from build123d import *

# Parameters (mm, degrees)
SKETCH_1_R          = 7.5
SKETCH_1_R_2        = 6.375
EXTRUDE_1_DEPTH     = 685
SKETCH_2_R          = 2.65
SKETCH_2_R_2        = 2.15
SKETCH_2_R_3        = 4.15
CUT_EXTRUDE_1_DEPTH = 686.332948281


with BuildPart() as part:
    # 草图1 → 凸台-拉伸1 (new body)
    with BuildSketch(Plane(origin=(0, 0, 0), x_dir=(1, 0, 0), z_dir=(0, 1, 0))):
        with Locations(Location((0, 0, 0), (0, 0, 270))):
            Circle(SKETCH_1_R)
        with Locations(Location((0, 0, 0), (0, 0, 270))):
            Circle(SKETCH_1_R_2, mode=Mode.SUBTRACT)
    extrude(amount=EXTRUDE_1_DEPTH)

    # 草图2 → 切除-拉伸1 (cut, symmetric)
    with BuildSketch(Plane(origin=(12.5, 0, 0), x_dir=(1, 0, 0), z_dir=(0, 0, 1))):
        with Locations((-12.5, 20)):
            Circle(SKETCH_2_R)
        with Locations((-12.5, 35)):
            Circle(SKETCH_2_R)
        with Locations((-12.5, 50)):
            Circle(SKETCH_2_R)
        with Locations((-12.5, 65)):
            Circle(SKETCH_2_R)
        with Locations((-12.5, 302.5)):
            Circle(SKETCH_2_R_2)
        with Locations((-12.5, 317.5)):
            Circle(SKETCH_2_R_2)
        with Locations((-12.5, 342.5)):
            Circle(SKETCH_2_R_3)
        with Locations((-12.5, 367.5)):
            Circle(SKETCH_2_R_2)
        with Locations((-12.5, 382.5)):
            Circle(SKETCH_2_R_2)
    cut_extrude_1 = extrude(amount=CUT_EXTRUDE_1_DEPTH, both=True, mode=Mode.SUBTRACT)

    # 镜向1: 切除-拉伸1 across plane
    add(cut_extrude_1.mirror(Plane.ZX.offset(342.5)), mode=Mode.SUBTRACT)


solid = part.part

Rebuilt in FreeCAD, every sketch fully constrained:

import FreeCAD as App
import Part
import Sketcher
from FreeCAD import Vector

doc = App.newDocument("Part")
body = doc.addObject("PartDesign::Body", "Body")

# Sketch on XZ plane
sketch1 = body.newObject("Sketcher::SketchObject", "Sketch")
sketch1.AttachmentSupport = (doc.getObject("XZ_Plane"), [""])
sketch1.MapMode = "FlatFace"
sketch1.addGeometry(Part.Circle(Vector(0, 0, 0), Vector(0, 0, 1), 8), False)
sketch1.addGeometry(Part.Circle(Vector(0, 0, 0), Vector(0, 0, 1), 6), False)
sketch1.addConstraint(Sketcher.Constraint("Coincident", 0, 3, -1, 1))
sketch1.addConstraint(Sketcher.Constraint("Coincident", 1, 3, -1, 1))
sketch1.addConstraint(Sketcher.Constraint("Diameter", 0, 15.0))
sketch1.addConstraint(Sketcher.Constraint("Diameter", 1, 12.75))
pad1 = body.newObject("PartDesign::Pad", "Pad")
pad1.Profile = sketch1
pad1.Length = 685
pad1.Reversed = True

# Sketch on XY plane
sketch2 = body.newObject("Sketcher::SketchObject", "Sketch001")
sketch2.AttachmentSupport = (doc.getObject("XY_Plane"), [""])
sketch2.MapMode = "FlatFace"
sketch2.addGeometry(Part.Circle(Vector(0, 20, 0), Vector(0, 0, 1), 2.6), False)
sketch2.addGeometry(Part.Circle(Vector(0, 35, 0), Vector(0, 0, 1), 2.6), False)
sketch2.addGeometry(Part.Circle(Vector(0, 50, 0), Vector(0, 0, 1), 2.6), False)
sketch2.addGeometry(Part.Circle(Vector(0, 65, 0), Vector(0, 0, 1), 2.6), False)
sketch2.addGeometry(Part.Circle(Vector(0, 302.5, 0), Vector(0, 0, 1), 2.1), False)
sketch2.addGeometry(Part.Circle(Vector(0, 317.5, 0), Vector(0, 0, 1), 2.1), False)
sketch2.addGeometry(Part.Circle(Vector(0, 342.5, 0), Vector(0, 0, 1), 4.2), False)
sketch2.addGeometry(Part.Circle(Vector(0, 367.5, 0), Vector(0, 0, 1), 2.1), False)
sketch2.addGeometry(Part.Circle(Vector(0, 382.5, 0), Vector(0, 0, 1), 2.1), False)
sketch2.addConstraint(Sketcher.Constraint("Equal", 0, 1))
sketch2.addConstraint(Sketcher.Constraint("Equal", 1, 2))
sketch2.addConstraint(Sketcher.Constraint("Equal", 2, 3))
sketch2.addConstraint(Sketcher.Constraint("Equal", 4, 5))
sketch2.addConstraint(Sketcher.Constraint("Equal", 5, 7))
sketch2.addConstraint(Sketcher.Constraint("Equal", 7, 8))
sketch2.addConstraint(Sketcher.Constraint("PointOnObject", 0, 3, -2))
sketch2.addConstraint(Sketcher.Constraint("PointOnObject", 1, 3, -2))
sketch2.addConstraint(Sketcher.Constraint("PointOnObject", 2, 3, -2))
sketch2.addConstraint(Sketcher.Constraint("PointOnObject", 3, 3, -2))
sketch2.addConstraint(Sketcher.Constraint("PointOnObject", 4, 3, -2))
sketch2.addConstraint(Sketcher.Constraint("PointOnObject", 5, 3, -2))
sketch2.addConstraint(Sketcher.Constraint("PointOnObject", 6, 3, -2))
sketch2.addConstraint(Sketcher.Constraint("PointOnObject", 7, 3, -2))
sketch2.addConstraint(Sketcher.Constraint("PointOnObject", 8, 3, -2))
sketch2.addConstraint(Sketcher.Constraint("Diameter", 0, 5.3))
sketch2.addConstraint(Sketcher.Constraint("Diameter", 4, 4.3))
sketch2.addConstraint(Sketcher.Constraint("Diameter", 6, 8.3))
sketch2.addConstraint(Sketcher.Constraint("DistanceY", -1, 1, 0, 3, 20.0))
sketch2.addConstraint(Sketcher.Constraint("DistanceY", -1, 1, 1, 3, 35.0))
sketch2.addConstraint(Sketcher.Constraint("DistanceY", -1, 1, 2, 3, 50.0))
sketch2.addConstraint(Sketcher.Constraint("DistanceY", -1, 1, 3, 3, 65.0))
sketch2.addConstraint(Sketcher.Constraint("DistanceY", 4, 3, 5, 3, 15.0))
sketch2.addConstraint(Sketcher.Constraint("DistanceY", 5, 3, 6, 3, 25.0))
sketch2.addConstraint(Sketcher.Constraint("DistanceY", 6, 3, 7, 3, 25.0))
sketch2.addConstraint(Sketcher.Constraint("DistanceY", 7, 3, 8, 3, 15.0))
sketch2.addConstraint(Sketcher.Constraint("DistanceY", -1, 1, 4, 3, 302.5))
pocket1 = body.newObject("PartDesign::Pocket", "Pocket")
pocket1.Profile = sketch2
pocket1.Length = 1372.665897
pocket1.Midplane = True
doc.recompute()

datumplane = body.newObject("PartDesign::Plane", "DatumPlane")
datumplane.AttachmentSupport = (doc.getObject("XZ_Plane"), [""])
datumplane.MapMode = "FlatFace"
datumplane.AttachmentOffset = App.Placement(Vector(0, 0, -342.5), App.Rotation())
mirrored = body.newObject("PartDesign::Mirrored", "Mirrored")
mirrored.Originals = [pocket1]
mirrored.MirrorPlane = (datumplane, [""])
body.Tip = mirrored

doc.recompute()
